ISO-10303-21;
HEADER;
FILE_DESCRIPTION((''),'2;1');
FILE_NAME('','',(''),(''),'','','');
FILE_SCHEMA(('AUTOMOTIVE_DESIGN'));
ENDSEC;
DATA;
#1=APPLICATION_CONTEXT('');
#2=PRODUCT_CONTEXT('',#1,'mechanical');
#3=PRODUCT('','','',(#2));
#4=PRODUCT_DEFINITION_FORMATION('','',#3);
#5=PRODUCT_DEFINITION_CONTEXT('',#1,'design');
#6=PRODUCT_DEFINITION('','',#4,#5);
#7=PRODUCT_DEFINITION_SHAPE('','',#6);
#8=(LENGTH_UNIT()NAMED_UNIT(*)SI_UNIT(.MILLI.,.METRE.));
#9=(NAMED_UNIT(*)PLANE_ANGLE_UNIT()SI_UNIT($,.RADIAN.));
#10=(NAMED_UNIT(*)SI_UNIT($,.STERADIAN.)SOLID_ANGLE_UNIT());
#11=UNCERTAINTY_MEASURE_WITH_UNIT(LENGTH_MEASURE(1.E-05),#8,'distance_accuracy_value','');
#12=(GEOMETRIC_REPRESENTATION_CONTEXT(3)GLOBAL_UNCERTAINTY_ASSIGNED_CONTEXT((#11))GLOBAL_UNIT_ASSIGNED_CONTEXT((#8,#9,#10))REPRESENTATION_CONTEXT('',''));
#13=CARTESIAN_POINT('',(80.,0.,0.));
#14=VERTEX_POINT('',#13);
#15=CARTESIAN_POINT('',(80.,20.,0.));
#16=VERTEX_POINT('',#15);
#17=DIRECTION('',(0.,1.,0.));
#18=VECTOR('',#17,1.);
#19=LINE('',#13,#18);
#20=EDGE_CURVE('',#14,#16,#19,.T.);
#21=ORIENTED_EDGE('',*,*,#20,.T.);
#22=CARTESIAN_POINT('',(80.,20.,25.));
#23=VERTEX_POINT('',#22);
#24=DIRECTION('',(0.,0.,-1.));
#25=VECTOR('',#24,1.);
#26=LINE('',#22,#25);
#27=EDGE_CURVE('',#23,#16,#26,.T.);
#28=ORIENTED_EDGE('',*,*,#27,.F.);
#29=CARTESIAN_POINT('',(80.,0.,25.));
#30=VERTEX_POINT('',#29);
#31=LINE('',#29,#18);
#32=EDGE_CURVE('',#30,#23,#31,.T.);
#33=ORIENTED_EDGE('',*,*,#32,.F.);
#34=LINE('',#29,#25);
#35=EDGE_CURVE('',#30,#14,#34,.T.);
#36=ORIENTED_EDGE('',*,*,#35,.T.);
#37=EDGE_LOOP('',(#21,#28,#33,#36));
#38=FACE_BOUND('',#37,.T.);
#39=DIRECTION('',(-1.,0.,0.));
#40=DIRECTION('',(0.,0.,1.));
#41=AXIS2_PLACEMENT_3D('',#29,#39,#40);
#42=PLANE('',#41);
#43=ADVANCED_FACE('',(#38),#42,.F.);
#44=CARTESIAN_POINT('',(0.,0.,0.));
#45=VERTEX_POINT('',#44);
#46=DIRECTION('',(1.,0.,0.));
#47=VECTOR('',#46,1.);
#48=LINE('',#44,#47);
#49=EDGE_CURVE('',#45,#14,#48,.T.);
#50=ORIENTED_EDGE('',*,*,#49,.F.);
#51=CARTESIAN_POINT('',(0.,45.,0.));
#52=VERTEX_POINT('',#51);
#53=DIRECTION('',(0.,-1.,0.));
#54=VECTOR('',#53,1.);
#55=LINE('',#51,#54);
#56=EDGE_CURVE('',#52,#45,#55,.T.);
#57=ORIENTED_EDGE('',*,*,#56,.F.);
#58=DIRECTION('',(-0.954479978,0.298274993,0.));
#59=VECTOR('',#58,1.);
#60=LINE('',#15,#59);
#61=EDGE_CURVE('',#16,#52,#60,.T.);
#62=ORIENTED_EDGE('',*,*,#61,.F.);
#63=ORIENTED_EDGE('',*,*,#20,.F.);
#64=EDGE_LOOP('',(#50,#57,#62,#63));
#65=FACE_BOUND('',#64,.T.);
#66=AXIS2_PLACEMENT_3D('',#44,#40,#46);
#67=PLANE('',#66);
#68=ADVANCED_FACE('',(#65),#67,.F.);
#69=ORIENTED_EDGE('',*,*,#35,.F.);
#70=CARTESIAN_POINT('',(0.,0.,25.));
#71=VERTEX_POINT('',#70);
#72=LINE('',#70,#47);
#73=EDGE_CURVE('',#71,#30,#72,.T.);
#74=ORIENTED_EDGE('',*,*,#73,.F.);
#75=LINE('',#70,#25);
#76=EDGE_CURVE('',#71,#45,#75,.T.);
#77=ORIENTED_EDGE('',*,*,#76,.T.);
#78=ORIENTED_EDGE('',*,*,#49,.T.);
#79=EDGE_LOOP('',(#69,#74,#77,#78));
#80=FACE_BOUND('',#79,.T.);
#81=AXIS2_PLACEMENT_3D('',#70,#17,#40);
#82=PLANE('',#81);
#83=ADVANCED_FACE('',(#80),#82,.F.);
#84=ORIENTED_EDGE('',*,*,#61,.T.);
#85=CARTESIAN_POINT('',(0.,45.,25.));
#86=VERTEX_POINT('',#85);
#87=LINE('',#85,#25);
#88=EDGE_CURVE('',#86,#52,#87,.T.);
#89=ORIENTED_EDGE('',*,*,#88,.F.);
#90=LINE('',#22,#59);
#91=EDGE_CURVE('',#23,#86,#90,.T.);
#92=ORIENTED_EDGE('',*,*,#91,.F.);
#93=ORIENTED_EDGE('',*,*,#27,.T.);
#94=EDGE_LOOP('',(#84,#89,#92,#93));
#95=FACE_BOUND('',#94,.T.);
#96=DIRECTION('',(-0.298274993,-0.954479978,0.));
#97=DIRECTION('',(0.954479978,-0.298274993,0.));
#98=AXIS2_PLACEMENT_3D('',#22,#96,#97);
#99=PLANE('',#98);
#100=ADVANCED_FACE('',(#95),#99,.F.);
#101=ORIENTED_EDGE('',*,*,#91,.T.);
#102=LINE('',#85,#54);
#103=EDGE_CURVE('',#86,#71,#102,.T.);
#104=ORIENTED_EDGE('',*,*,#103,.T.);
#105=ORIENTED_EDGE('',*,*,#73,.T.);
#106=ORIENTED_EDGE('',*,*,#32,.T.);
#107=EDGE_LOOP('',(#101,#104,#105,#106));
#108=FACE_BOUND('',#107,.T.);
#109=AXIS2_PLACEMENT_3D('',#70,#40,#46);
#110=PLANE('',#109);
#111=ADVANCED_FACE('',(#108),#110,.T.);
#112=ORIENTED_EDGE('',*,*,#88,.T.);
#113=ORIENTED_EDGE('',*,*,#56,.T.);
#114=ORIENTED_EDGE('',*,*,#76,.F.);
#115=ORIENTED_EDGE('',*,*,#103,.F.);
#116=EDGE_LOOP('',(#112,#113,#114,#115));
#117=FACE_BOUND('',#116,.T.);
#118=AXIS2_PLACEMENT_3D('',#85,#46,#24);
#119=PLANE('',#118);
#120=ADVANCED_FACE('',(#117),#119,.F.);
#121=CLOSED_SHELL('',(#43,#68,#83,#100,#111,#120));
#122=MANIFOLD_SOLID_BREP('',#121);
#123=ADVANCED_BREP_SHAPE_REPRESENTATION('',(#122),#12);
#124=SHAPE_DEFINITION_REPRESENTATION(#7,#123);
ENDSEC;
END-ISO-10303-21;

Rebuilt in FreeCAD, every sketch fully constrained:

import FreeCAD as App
import Part
import Sketcher

V = App.Vector

doc = App.newDocument("Part")
body = doc.addObject("PartDesign::Body", "Body")

sketch1 = body.newObject("Sketcher::SketchObject", "Sketch")
sketch1.AttachmentSupport = (doc.getObject("XY_Plane"), [""])
sketch1.MapMode = "FlatFace"
sketch1.addGeometry([
    Part.LineSegment(V(0, 0, 0), V(80, 0, 0)),
    Part.LineSegment(V(80, 0, 0), V(80, 20, 0)),
    Part.LineSegment(V(80, 20, 0), V(0, 45, 0)),
    Part.LineSegment(V(0, 45, 0), V(0, 0, 0)),
], False)
sketch1.addConstraint([
    Sketcher.Constraint("Coincident", 0, 2, 1, 1),
    Sketcher.Constraint("Coincident", 1, 2, 2, 1),
    Sketcher.Constraint("Coincident", 2, 2, 3, 1),
    Sketcher.Constraint("Coincident", 3, 2, 0, 1),
    Sketcher.Constraint("Horizontal", 0),
    Sketcher.Constraint("Vertical", 1),
    Sketcher.Constraint("Vertical", 3),
    Sketcher.Constraint("Coincident", 3, 2, -1, 1),
    Sketcher.Constraint("DistanceX", 0, 1, 0, 2, 80.0),
    Sketcher.Constraint("DistanceY", 1, 1, 1, 2, 20.0),
    Sketcher.Constraint("DistanceY", 3, 2, 3, 1, 45.0),
])
pad1 = body.newObject("PartDesign::Pad", "Pad")
pad1.Profile = sketch1
pad1.Length = 25

doc.recompute()
